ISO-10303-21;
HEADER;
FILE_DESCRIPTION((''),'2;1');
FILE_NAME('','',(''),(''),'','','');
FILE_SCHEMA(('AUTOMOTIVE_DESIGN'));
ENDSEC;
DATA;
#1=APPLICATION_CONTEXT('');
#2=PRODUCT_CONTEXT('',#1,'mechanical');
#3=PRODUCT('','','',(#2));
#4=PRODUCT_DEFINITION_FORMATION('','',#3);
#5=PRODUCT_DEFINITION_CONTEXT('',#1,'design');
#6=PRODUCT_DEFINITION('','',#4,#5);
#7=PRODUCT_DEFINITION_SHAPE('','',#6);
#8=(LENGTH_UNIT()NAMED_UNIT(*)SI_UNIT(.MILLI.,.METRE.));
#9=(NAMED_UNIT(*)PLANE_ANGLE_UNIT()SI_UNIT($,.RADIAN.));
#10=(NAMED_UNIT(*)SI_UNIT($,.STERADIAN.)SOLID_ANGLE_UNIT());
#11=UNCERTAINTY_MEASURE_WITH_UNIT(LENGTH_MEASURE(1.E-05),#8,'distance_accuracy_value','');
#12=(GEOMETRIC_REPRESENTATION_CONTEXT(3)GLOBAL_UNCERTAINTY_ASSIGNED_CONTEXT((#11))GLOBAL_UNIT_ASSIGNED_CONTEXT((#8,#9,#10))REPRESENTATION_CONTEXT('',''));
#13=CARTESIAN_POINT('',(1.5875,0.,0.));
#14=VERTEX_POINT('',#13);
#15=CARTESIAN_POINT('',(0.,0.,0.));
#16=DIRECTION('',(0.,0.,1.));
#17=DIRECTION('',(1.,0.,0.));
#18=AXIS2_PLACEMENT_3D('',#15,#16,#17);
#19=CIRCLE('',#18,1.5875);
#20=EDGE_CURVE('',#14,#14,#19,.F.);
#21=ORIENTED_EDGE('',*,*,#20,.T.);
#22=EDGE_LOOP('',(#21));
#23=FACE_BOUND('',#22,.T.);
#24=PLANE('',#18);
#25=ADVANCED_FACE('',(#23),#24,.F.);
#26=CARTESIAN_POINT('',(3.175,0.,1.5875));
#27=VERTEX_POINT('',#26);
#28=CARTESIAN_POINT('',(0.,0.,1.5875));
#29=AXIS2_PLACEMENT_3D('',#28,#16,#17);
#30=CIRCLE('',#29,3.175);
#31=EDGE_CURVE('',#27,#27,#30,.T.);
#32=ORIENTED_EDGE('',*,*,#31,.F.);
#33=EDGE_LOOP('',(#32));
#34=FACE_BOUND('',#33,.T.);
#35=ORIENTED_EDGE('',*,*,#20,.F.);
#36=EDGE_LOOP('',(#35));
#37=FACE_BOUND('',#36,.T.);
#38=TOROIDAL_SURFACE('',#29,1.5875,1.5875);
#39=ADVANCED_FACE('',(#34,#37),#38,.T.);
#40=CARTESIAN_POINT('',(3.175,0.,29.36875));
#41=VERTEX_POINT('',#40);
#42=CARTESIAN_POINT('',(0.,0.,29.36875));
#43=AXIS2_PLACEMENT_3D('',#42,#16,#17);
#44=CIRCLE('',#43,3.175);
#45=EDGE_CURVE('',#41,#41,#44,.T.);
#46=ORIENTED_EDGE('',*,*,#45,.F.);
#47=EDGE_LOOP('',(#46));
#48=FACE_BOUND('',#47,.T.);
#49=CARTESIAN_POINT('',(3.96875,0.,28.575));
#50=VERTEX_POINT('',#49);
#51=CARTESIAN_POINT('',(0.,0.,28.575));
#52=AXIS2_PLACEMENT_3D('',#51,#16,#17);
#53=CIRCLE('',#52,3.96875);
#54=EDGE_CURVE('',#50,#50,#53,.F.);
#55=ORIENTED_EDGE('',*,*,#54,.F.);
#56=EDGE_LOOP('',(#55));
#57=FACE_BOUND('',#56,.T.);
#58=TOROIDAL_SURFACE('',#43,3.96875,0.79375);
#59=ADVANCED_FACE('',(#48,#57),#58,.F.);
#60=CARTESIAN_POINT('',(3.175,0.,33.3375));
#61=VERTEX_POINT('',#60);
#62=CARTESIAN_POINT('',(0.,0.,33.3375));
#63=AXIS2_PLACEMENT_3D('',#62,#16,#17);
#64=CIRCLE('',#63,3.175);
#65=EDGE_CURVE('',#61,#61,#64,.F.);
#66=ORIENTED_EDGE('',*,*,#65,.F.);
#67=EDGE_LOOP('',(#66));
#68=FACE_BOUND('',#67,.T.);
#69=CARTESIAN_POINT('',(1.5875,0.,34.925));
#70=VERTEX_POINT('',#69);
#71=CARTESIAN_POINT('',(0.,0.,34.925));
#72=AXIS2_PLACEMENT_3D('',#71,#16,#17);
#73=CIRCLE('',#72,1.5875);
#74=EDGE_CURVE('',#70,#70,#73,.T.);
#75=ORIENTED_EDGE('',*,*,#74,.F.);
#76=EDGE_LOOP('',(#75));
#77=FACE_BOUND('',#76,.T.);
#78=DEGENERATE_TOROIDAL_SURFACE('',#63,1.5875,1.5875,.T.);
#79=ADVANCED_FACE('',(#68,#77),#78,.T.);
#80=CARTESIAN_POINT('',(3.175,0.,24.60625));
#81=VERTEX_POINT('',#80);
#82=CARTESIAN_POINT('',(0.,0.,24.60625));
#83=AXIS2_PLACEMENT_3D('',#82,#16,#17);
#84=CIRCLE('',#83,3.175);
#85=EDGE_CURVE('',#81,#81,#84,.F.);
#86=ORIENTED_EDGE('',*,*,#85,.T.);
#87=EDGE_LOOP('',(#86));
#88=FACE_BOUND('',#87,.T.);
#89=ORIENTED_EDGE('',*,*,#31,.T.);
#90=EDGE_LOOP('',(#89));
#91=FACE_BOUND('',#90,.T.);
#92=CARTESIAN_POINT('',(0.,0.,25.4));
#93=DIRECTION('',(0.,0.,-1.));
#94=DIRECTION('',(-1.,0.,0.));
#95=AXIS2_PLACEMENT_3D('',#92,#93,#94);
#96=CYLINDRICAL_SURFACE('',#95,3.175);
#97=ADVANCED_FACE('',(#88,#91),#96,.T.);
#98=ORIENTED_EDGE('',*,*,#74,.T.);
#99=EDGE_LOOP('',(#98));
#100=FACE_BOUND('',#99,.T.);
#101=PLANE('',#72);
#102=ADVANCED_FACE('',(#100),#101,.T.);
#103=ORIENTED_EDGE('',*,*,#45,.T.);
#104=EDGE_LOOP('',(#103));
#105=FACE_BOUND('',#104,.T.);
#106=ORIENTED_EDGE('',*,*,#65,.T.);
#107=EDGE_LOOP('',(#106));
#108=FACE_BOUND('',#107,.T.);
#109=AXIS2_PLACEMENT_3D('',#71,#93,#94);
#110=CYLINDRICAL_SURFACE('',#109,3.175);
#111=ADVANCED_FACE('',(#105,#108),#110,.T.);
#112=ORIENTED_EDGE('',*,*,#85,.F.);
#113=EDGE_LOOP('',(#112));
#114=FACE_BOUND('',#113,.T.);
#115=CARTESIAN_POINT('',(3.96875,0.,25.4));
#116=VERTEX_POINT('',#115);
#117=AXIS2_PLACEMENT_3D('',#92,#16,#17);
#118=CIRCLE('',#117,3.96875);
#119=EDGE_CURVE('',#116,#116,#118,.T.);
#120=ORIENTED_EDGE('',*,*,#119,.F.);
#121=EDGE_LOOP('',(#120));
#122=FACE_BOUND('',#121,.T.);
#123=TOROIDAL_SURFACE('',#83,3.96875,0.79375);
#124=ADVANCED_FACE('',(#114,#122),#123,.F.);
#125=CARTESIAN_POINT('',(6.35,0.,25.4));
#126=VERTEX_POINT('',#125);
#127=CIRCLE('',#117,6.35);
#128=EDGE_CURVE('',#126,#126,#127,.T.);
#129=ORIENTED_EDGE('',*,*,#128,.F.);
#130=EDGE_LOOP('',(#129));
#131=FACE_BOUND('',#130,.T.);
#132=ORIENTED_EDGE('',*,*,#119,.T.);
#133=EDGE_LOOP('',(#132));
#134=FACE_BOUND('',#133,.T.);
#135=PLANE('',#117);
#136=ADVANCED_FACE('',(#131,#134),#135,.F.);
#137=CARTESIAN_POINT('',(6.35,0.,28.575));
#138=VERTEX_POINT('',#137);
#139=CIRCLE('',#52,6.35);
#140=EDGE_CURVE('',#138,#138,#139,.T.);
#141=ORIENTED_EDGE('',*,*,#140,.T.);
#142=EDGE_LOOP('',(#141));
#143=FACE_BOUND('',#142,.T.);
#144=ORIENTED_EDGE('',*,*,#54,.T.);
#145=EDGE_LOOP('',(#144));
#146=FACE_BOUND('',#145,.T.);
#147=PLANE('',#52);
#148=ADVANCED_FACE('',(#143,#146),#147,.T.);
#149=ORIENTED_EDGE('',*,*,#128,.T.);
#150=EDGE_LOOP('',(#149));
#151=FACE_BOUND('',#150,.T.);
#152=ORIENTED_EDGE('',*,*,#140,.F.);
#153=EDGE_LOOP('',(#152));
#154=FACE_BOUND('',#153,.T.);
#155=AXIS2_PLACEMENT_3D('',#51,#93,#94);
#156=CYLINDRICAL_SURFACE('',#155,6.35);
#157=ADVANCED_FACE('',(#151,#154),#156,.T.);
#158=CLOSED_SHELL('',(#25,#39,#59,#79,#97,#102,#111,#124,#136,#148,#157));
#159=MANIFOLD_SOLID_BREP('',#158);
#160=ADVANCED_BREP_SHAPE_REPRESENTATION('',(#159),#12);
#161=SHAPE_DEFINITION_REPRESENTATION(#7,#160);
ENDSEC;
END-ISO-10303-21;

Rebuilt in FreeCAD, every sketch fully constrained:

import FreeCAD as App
import Part
import Sketcher
Q = App.Units.Quantity


def edges_at(feature, points):
    """Names of the edges that pass closest to the given points."""
    edges = feature.Shape.Edges
    near = lambda p: min(range(len(edges)), key=lambda i: edges[i].distToShape(Part.Vertex(*p))[0])
    return sorted({f"Edge{near(p) + 1}" for p in points})

doc = App.newDocument("Part")
params = doc.addObject("Spreadsheet::Sheet", "Params")
for row, (alias, value) in enumerate([
    ("sketch1_diameter", "0.25 in"),
    ("pad1_length", "1 in"),
    ("sketch2_diameter", "0.5 in"),
    ("pad2_length", "0.125 in"),
    ("sketch3_diameter", "0.25 in"),
    ("pad3_length", "0.25 in"),
    ("fillet_radius", "0.0625 in"),
    ("fillet2_radius", "0.03125 in"),
], start=1):
    params.set(f"A{row}", alias)
    params.set(f"B{row}", "=" + value)
    params.setAlias(f"B{row}", alias)

body = doc.addObject("PartDesign::Body", "Body")

sketch1 = doc.addObject("Sketcher::SketchObject", "Sketch")
body.addObject(sketch1)
sketch1.AttachmentSupport = (doc.XY_Plane, [""])
sketch1.MapMode = "FlatFace"
sketch1.addGeometry(Part.Circle(App.Vector(0, 0, 0), App.Vector(0, 0, 1), 3.2), False)
sketch1.addConstraint([
    Sketcher.Constraint("Coincident", 0, 3, -1, 1),
    Sketcher.Constraint("Diameter", 0, Q("0.25 in")),
])
sketch1.setExpression("Constraints[1]", "Params.sketch1_diameter")
pad1 = doc.addObject("PartDesign::Pad", "Pad")
body.addObject(pad1)
pad1.Profile = sketch1
pad1.setExpression("Length", "Params.pad1_length")

sketch2 = doc.addObject("Sketcher::SketchObject", "Sketch001")
body.addObject(sketch2)
sketch2.AttachmentSupport = (doc.XY_Plane, [""])
sketch2.MapMode = "FlatFace"
sketch2.AttachmentOffset = App.Placement(App.Vector(0, 0, 1 * 25.4), App.Rotation())
sketch2.addGeometry(Part.Circle(App.Vector(0, 0, 0), App.Vector(0, 0, 1), 6), False)
sketch2.addConstraint([
    Sketcher.Constraint("Coincident", 0, 3, -1, 1),
    Sketcher.Constraint("Diameter", 0, Q("0.5 in")),
])
sketch2.setExpression("Constraints[1]", "Params.sketch2_diameter")
pad2 = doc.addObject("PartDesign::Pad", "Pad001")
body.addObject(pad2)
pad2.Profile = sketch2
pad2.setExpression("Length", "Params.pad2_length")

sketch3 = doc.addObject("Sketcher::SketchObject", "Sketch002")
body.addObject(sketch3)
sketch3.AttachmentSupport = (doc.XY_Plane, [""])
sketch3.MapMode = "FlatFace"
sketch3.AttachmentOffset = App.Placement(App.Vector(0, 0, 1.125 * 25.4), App.Rotation())
sketch3.addGeometry(Part.Circle(App.Vector(0, 0, 0), App.Vector(0, 0, 1), 3.2), False)
sketch3.addConstraint([
    Sketcher.Constraint("Coincident", 0, 3, -1, 1),
    Sketcher.Constraint("Diameter", 0, Q("0.25 in")),
])
sketch3.setExpression("Constraints[1]", "Params.sketch3_diameter")
pad3 = doc.addObject("PartDesign::Pad", "Pad002")
body.addObject(pad3)
pad3.Profile = sketch3
pad3.setExpression("Length", "Params.pad3_length")
doc.recompute()

fillet = doc.addObject("PartDesign::Fillet", "Fillet")
body.addObject(fillet)
fillet.Base = (pad3, edges_at(pad3, [(-3.175, 0, 34.925), (-3.175, 0, 0)]))
fillet.setExpression("Radius", "Params.fillet_radius")
doc.recompute()

fillet2 = doc.addObject("PartDesign::Fillet", "Fillet001")
body.addObject(fillet2)
fillet2.Base = (fillet, edges_at(fillet, [(-3.175, 0, 28.575), (-3.175, 0, 25.4)]))
fillet2.setExpression("Radius", "Params.fillet2_radius")

doc.recompute()
